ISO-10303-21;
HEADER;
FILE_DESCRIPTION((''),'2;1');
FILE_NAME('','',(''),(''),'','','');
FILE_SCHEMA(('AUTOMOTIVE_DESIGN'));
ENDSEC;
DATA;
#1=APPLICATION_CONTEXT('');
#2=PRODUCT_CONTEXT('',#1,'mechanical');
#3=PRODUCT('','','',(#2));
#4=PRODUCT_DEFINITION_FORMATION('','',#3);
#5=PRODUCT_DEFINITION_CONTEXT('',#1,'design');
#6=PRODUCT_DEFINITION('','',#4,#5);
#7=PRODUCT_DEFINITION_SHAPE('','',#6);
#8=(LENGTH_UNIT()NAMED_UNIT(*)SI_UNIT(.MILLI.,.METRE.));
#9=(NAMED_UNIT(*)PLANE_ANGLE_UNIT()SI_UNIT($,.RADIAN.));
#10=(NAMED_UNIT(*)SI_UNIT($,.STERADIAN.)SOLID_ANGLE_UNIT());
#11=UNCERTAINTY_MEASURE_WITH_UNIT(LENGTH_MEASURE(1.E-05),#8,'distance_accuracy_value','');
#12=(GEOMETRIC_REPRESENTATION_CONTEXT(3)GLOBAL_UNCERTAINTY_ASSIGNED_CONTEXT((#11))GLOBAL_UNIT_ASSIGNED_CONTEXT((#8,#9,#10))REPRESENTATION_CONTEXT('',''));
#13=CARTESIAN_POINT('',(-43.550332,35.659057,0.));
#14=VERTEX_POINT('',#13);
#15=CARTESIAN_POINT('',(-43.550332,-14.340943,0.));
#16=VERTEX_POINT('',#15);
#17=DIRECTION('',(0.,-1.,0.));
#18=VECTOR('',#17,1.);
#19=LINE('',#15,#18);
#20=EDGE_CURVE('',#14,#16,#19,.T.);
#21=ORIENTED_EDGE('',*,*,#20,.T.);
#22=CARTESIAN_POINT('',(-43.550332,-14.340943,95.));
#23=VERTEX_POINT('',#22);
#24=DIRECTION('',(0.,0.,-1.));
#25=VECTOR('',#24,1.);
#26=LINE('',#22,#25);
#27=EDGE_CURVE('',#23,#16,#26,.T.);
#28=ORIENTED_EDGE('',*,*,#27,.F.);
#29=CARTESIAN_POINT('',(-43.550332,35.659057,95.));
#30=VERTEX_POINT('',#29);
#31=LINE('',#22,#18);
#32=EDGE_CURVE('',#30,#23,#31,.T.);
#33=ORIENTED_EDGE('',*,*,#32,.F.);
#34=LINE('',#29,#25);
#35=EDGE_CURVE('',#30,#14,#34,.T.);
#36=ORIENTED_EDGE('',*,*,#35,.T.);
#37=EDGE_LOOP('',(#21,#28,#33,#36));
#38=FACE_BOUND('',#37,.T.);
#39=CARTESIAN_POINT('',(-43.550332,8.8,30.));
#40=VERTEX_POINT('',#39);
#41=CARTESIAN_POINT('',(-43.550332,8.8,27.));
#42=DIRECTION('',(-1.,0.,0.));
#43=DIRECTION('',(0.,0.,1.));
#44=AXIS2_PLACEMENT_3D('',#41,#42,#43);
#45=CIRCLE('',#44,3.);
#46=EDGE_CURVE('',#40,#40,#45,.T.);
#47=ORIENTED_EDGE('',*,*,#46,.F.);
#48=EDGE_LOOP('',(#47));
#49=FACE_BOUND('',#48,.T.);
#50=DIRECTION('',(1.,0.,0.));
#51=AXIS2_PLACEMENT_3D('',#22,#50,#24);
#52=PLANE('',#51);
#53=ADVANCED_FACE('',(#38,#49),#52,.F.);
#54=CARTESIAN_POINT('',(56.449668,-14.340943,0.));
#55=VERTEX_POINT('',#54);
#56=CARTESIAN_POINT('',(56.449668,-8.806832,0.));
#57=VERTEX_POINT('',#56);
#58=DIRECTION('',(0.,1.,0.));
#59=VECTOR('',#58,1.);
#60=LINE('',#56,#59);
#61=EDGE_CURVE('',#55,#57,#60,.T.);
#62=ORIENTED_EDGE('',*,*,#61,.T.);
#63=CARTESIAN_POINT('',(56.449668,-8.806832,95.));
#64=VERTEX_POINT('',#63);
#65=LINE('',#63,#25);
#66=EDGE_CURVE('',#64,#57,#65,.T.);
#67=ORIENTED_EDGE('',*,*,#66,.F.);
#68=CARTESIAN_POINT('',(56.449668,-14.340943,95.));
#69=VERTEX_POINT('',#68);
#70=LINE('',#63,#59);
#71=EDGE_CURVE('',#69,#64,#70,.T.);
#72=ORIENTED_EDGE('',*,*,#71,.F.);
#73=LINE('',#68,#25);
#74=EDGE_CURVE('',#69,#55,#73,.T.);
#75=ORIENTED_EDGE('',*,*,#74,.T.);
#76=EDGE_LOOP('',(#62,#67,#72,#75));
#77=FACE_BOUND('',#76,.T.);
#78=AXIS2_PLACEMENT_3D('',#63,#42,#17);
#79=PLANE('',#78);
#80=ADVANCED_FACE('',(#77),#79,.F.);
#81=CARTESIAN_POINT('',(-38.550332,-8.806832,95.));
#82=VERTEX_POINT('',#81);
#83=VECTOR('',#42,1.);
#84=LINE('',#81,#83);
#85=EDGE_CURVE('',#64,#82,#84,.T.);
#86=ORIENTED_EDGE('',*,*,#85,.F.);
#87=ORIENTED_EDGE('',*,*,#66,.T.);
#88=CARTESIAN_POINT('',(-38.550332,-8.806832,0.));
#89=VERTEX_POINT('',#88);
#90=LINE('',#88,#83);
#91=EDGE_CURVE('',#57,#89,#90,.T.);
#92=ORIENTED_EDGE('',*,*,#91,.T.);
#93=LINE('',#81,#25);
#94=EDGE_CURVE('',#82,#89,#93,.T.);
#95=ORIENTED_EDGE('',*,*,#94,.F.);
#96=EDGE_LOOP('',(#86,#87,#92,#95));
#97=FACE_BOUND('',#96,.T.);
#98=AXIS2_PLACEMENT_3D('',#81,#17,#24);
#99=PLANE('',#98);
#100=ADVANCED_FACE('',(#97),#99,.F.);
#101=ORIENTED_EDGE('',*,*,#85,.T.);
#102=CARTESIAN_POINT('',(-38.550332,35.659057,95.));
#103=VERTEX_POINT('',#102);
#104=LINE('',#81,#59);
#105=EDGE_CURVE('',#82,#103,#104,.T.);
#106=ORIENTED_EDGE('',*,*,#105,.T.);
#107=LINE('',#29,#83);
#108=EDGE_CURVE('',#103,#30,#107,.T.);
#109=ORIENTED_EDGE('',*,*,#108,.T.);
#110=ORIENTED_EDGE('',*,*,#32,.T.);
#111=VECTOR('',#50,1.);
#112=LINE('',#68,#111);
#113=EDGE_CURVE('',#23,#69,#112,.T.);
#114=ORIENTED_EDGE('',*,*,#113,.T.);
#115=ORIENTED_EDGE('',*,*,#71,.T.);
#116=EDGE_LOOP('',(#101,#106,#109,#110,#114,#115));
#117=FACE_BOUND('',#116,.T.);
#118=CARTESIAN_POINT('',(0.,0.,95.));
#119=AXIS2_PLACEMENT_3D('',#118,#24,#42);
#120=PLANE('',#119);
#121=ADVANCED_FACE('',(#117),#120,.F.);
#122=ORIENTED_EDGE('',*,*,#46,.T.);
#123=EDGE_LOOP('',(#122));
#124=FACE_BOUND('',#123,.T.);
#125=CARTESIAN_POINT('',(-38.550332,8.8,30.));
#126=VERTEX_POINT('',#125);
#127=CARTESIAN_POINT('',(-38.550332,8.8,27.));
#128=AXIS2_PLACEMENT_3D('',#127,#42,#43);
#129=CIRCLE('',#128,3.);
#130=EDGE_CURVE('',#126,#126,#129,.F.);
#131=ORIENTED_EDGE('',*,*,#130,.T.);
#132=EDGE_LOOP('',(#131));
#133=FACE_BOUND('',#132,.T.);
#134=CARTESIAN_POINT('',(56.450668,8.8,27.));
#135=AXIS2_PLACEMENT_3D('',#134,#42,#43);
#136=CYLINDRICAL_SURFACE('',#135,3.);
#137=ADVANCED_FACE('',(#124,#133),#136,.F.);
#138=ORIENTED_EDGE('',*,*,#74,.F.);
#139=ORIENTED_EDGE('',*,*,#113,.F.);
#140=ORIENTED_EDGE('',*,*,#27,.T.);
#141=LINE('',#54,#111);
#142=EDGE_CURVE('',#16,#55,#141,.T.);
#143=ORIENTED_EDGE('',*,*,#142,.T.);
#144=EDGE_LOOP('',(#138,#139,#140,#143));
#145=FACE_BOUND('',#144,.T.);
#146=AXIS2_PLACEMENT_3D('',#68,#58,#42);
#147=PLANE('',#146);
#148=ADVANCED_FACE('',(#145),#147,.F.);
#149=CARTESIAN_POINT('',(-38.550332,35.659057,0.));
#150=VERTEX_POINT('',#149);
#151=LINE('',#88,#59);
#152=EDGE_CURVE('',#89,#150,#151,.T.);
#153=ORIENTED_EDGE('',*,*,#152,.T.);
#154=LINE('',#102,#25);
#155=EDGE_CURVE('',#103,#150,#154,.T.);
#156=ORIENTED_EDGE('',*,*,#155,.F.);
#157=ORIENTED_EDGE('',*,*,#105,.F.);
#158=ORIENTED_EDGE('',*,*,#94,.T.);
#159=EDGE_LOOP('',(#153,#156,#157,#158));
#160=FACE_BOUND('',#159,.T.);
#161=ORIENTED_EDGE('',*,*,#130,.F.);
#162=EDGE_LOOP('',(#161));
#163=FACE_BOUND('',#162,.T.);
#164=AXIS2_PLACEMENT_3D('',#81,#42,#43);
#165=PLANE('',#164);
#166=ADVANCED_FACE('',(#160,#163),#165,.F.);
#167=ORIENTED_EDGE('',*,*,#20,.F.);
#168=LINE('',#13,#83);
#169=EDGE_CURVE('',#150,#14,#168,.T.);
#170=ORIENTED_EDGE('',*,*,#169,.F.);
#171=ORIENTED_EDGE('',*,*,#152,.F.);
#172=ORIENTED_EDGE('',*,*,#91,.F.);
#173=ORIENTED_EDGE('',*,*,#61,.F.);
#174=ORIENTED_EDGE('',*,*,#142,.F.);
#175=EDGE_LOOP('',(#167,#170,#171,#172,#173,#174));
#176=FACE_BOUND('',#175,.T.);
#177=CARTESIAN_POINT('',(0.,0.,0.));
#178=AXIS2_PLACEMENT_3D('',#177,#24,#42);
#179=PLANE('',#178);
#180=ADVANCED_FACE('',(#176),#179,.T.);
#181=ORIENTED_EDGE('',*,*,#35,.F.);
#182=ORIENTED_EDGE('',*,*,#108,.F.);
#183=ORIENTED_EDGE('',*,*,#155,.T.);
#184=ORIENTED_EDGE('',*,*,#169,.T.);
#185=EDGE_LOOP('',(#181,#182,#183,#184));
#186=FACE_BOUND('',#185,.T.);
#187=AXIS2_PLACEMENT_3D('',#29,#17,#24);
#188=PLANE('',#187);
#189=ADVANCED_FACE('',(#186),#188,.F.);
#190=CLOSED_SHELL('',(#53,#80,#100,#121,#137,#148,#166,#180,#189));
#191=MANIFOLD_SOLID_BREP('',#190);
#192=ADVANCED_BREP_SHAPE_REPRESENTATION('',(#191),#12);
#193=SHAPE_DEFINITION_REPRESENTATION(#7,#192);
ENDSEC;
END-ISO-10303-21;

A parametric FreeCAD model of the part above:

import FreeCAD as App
import Part
import Sketcher


def add_polygon(sketch, points):
    """Adds a closed chain of lines whose ends are joined by coincident constraints."""
    first, n = sketch.GeometryCount, len(points)
    for a, b in zip(points, points[1:] + points[:1]):
        sketch.addGeometry(Part.LineSegment(App.Vector(*a, 0), App.Vector(*b, 0)), False)
    for i in range(n):
        sketch.addConstraint(Sketcher.Constraint("Coincident", first + i, 2, first + (i + 1) % n, 1))

doc = App.newDocument("Part")
body = doc.addObject("PartDesign::Body", "Body")

# Sketch on XY plane
sketch1 = doc.addObject("Sketcher::SketchObject", "Sketch")
body.addObject(sketch1)
sketch1.AttachmentSupport = (doc.XY_Plane, [""])
sketch1.MapMode = "FlatFace"
add_polygon(sketch1, [(-38.550332, 35.659057), (-43.550332, 35.659057), (-43.550332, -14.340943), (56.449668, -14.340943), (56.449668, -8.806832), (-38.550332, -8.806832)])  # lines 0-5
sketch1.addConstraint(Sketcher.Constraint("Horizontal", 0))
sketch1.addConstraint(Sketcher.Constraint("Vertical", 1))
sketch1.addConstraint(Sketcher.Constraint("Horizontal", 2))
sketch1.addConstraint(Sketcher.Constraint("Vertical", 3))
sketch1.addConstraint(Sketcher.Constraint("Horizontal", 4))
sketch1.addConstraint(Sketcher.Constraint("Vertical", 5))
sketch1.addConstraint(Sketcher.Constraint("DistanceX", 0, 2, 0, 1, 5.0))
sketch1.addConstraint(Sketcher.Constraint("DistanceX", 2, 1, 2, 2, 100.0))
sketch1.addConstraint(Sketcher.Constraint("DistanceY", 1, 2, 1, 1, 50.0))
sketch1.addConstraint(Sketcher.Constraint("DistanceY", 3, 1, 3, 2, 5.53411))
sketch1.addConstraint(Sketcher.Constraint("DistanceX", 0, 2, -1, 1, 43.550332))
sketch1.addConstraint(Sketcher.Constraint("DistanceY", -1, 1, 0, 2, 35.659057))
pad1 = doc.addObject("PartDesign::Pad", "Pad")
body.addObject(pad1)
pad1.Profile = sketch1
pad1.Length = 95

# Sketch on YZ plane
sketch2 = doc.addObject("Sketcher::SketchObject", "Sketch001")
body.addObject(sketch2)
sketch2.AttachmentSupport = (doc.YZ_Plane, [""])
sketch2.MapMode = "FlatFace"
sketch2.AttachmentOffset = App.Placement(App.Vector(0, 0, -43.550332), App.Rotation())
sketch2.addGeometry(Part.Circle(App.Vector(8.8, 27, 0), App.Vector(0, 0, 1), 3), False)
sketch2.addConstraint(Sketcher.Constraint("Diameter", 0, 6.0))
sketch2.addConstraint(Sketcher.Constraint("DistanceY", -1, 1, 0, 3, 27.0))
sketch2.addConstraint(Sketcher.Constraint("DistanceX", -1, 1, 0, 3, 8.8))
pocket1 = doc.addObject("PartDesign::Pocket", "Pocket")
body.addObject(pocket1)
pocket1.Profile = sketch2
pocket1.Type = "UpToFirst"
pocket1.Reversed = True

doc.recompute()
